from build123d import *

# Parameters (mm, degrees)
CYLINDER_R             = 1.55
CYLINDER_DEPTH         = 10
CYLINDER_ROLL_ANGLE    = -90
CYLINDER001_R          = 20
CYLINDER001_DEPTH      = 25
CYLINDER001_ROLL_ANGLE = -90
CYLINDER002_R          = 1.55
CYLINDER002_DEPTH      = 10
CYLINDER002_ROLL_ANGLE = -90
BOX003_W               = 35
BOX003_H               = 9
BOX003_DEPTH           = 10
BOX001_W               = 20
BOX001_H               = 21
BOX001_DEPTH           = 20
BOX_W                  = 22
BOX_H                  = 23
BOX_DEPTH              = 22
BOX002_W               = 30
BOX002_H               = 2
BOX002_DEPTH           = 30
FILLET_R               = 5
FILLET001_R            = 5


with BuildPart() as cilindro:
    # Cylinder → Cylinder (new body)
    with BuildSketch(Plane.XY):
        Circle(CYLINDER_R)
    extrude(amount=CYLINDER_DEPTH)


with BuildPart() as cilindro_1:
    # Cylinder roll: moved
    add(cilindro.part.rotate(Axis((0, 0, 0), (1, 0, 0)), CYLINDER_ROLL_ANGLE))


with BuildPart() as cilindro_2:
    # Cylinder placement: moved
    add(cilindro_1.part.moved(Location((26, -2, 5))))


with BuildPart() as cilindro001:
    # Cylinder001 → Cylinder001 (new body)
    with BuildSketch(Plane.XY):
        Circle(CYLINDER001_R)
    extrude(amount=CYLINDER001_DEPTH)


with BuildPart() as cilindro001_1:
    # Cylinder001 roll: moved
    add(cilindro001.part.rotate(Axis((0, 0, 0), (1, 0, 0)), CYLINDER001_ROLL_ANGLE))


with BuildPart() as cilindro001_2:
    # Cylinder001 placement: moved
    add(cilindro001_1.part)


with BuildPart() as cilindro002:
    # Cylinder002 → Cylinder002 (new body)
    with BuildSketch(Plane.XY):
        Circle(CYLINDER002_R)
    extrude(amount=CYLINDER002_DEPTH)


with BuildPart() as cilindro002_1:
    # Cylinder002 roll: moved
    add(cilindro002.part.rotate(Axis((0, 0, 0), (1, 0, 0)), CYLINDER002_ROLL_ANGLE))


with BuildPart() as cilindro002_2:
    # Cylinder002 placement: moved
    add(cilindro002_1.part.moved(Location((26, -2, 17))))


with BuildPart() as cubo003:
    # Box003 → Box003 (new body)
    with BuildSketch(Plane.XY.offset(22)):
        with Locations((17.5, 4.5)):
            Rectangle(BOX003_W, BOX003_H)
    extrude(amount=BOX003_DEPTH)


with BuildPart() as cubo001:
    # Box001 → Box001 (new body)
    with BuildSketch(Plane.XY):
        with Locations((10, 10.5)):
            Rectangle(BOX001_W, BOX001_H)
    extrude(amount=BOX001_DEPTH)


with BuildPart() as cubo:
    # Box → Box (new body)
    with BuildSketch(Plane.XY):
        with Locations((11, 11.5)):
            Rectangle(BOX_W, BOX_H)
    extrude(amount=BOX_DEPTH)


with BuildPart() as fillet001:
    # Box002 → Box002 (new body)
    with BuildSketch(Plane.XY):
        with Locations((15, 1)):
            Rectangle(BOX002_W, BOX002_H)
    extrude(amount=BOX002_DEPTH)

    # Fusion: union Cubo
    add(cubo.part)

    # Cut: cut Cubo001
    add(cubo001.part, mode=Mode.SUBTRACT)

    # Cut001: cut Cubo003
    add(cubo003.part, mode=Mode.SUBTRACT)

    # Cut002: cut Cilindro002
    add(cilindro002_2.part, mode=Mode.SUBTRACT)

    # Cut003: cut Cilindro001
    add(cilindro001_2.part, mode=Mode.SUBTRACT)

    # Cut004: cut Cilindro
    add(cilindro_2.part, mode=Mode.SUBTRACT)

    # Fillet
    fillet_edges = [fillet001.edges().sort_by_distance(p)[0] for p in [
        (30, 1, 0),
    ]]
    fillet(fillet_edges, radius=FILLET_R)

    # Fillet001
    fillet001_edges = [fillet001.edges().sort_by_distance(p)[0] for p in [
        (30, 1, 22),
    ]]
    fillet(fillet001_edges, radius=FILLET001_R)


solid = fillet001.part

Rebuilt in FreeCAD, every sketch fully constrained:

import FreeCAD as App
import Part
import Sketcher


def edges_at(feature, points):
    """Names of the edges that pass closest to the given points."""
    edges = feature.Shape.Edges
    near = lambda p: min(range(len(edges)), key=lambda i: edges[i].distToShape(Part.Vertex(*p))[0])
    return sorted({f"Edge{near(p) + 1}" for p in points})


def add_polygon(sketch, points):
    """Adds a closed chain of lines whose ends are joined by coincident constraints."""
    first, n = sketch.GeometryCount, len(points)
    for a, b in zip(points, points[1:] + points[:1]):
        sketch.addGeometry(Part.LineSegment(App.Vector(*a, 0), App.Vector(*b, 0)), False)
    for i in range(n):
        sketch.addConstraint(Sketcher.Constraint("Coincident", first + i, 2, first + (i + 1) % n, 1))

doc = App.newDocument("Part")
body = doc.addObject("PartDesign::Body", "Body")

# Sketch on XY plane
sketch1 = body.newObject("Sketcher::SketchObject", "Sketch")
sketch1.AttachmentSupport = (doc.getObject("XY_Plane"), [""])
sketch1.MapMode = "FlatFace"
sketch1.addGeometry(Part.Circle(App.Vector(0, 0, 0), App.Vector(0, 0, 1), 1.55), False)
sketch1.addConstraint(Sketcher.Constraint("Coincident", 0, 3, -1, 1))
sketch1.addConstraint(Sketcher.Constraint("Diameter", 0, 3.1))
pad1 = body.newObject("PartDesign::Pad", "Pad")
pad1.Profile = sketch1
pad1.Length = 10
body2 = doc.addObject("PartDesign::Body", "Body001")
doc.recompute()

body.Placement = App.Placement(App.Vector(0, 0, 0), App.Rotation(App.Vector(1, 0, 0), 270))
boolean = body2.newObject("PartDesign::Boolean", "Boolean")
boolean.Type = "Fuse"
boolean.addObjects([body])
body3 = doc.addObject("PartDesign::Body", "Body002")
doc.recompute()

body2.Placement = App.Placement(App.Vector(26, -2, 5), App.Rotation(App.Vector(0, 0, 1), 0))
boolean2 = body3.newObject("PartDesign::Boolean", "Boolean001")
boolean2.Type = "Fuse"
boolean2.addObjects([body2])
body4 = doc.addObject("PartDesign::Body", "Body003")

# Sketch on XY plane
sketch2 = body4.newObject("Sketcher::SketchObject", "Sketch001")
sketch2.AttachmentSupport = (doc.getObject("XY_Plane003"), [""])
sketch2.MapMode = "FlatFace"
sketch2.addGeometry(Part.Circle(App.Vector(0, 0, 0), App.Vector(0, 0, 1), 20), False)
sketch2.addConstraint(Sketcher.Constraint("Coincident", 0, 3, -1, 1))
sketch2.addConstraint(Sketcher.Constraint("Diameter", 0, 40.0))
pad2 = body4.newObject("PartDesign::Pad", "Pad001")
pad2.Profile = sketch2
pad2.Length = 25
body5 = doc.addObject("PartDesign::Body", "Body004")
doc.recompute()

body4.Placement = App.Placement(App.Vector(0, 0, 0), App.Rotation(App.Vector(1, 0, 0), 270))
boolean3 = body5.newObject("PartDesign::Boolean", "Boolean002")
boolean3.Type = "Fuse"
boolean3.addObjects([body4])
body6 = doc.addObject("PartDesign::Body", "Body005")

# Sketch on XY plane
sketch3 = body6.newObject("Sketcher::SketchObject", "Sketch002")
sketch3.AttachmentSupport = (doc.getObject("XY_Plane005"), [""])
sketch3.MapMode = "FlatFace"
sketch3.addGeometry(Part.Circle(App.Vector(0, 0, 0), App.Vector(0, 0, 1), 1.55), False)
sketch3.addConstraint(Sketcher.Constraint("Coincident", 0, 3, -1, 1))
sketch3.addConstraint(Sketcher.Constraint("Diameter", 0, 3.1))
pad3 = body6.newObject("PartDesign::Pad", "Pad002")
pad3.Profile = sketch3
pad3.Length = 10
body7 = doc.addObject("PartDesign::Body", "Body006")
doc.recompute()

body6.Placement = App.Placement(App.Vector(0, 0, 0), App.Rotation(App.Vector(1, 0, 0), 270))
boolean4 = body7.newObject("PartDesign::Boolean", "Boolean003")
boolean4.Type = "Fuse"
boolean4.addObjects([body6])
body8 = doc.addObject("PartDesign::Body", "Body007")
doc.recompute()

body7.Placement = App.Placement(App.Vector(26, -2, 17), App.Rotation(App.Vector(0, 0, 1), 0))
boolean5 = body8.newObject("PartDesign::Boolean", "Boolean004")
boolean5.Type = "Fuse"
boolean5.addObjects([body7])
body9 = doc.addObject("PartDesign::Body", "Body008")

# Sketch on XY plane
sketch4 = body9.newObject("Sketcher::SketchObject", "Sketch003")
sketch4.AttachmentSupport = (doc.getObject("XY_Plane008"), [""])
sketch4.MapMode = "FlatFace"
sketch4.AttachmentOffset = App.Placement(App.Vector(0, 0, 22), App.Rotation())
add_polygon(sketch4, [(0, 9), (0, 0), (35, 0), (35, 9)])  # lines 0-3
sketch4.addConstraint(Sketcher.Constraint("Vertical", 0))
sketch4.addConstraint(Sketcher.Constraint("Horizontal", 1))
sketch4.addConstraint(Sketcher.Constraint("Vertical", 2))
sketch4.addConstraint(Sketcher.Constraint("Horizontal", 3))
sketch4.addConstraint(Sketcher.Constraint("Coincident", 0, 2, -1, 1))
sketch4.addConstraint(Sketcher.Constraint("DistanceX", 1, 1, 1, 2, 35.0))
sketch4.addConstraint(Sketcher.Constraint("DistanceY", 0, 2, 0, 1, 9.0))
pad4 = body9.newObject("PartDesign::Pad", "Pad003")
pad4.Profile = sketch4
pad4.Length = 10
body10 = doc.addObject("PartDesign::Body", "Body009")

# Sketch on XY plane
sketch5 = body10.newObject("Sketcher::SketchObject", "Sketch004")
sketch5.AttachmentSupport = (doc.getObject("XY_Plane009"), [""])
sketch5.MapMode = "FlatFace"
add_polygon(sketch5, [(0, 21), (0, 0), (20, 0), (20, 21)])  # lines 0-3
sketch5.addConstraint(Sketcher.Constraint("Vertical", 0))
sketch5.addConstraint(Sketcher.Constraint("Horizontal", 1))
sketch5.addConstraint(Sketcher.Constraint("Vertical", 2))
sketch5.addConstraint(Sketcher.Constraint("Horizontal", 3))
sketch5.addConstraint(Sketcher.Constraint("Coincident", 0, 2, -1, 1))
sketch5.addConstraint(Sketcher.Constraint("DistanceX", 1, 1, 1, 2, 20.0))
sketch5.addConstraint(Sketcher.Constraint("DistanceY", 0, 2, 0, 1, 21.0))
pad5 = body10.newObject("PartDesign::Pad", "Pad004")
pad5.Profile = sketch5
pad5.Length = 20
body11 = doc.addObject("PartDesign::Body", "Body010")

# Sketch on XY plane
sketch6 = body11.newObject("Sketcher::SketchObject", "Sketch005")
sketch6.AttachmentSupport = (doc.getObject("XY_Plane010"), [""])
sketch6.MapMode = "FlatFace"
add_polygon(sketch6, [(0, 23), (0, 0), (22, 0), (22, 23)])  # lines 0-3
sketch6.addConstraint(Sketcher.Constraint("Vertical", 0))
sketch6.addConstraint(Sketcher.Constraint("Horizontal", 1))
sketch6.addConstraint(Sketcher.Constraint("Vertical", 2))
sketch6.addConstraint(Sketcher.Constraint("Horizontal", 3))
sketch6.addConstraint(Sketcher.Constraint("Coincident", 0, 2, -1, 1))
sketch6.addConstraint(Sketcher.Constraint("DistanceX", 1, 1, 1, 2, 22.0))
sketch6.addConstraint(Sketcher.Constraint("DistanceY", 0, 2, 0, 1, 23.0))
pad6 = body11.newObject("PartDesign::Pad", "Pad005")
pad6.Profile = sketch6
pad6.Length = 22
body12 = doc.addObject("PartDesign::Body", "Body011")

# Sketch on XY plane
sketch7 = body12.newObject("Sketcher::SketchObject", "Sketch006")
sketch7.AttachmentSupport = (doc.getObject("XY_Plane011"), [""])
sketch7.MapMode = "FlatFace"
add_polygon(sketch7, [(0, 2), (0, 0), (30, 0), (30, 2)])  # lines 0-3
sketch7.addConstraint(Sketcher.Constraint("Vertical", 0))
sketch7.addConstraint(Sketcher.Constraint("Horizontal", 1))
sketch7.addConstraint(Sketcher.Constraint("Vertical", 2))
sketch7.addConstraint(Sketcher.Constraint("Horizontal", 3))
sketch7.addConstraint(Sketcher.Constraint("Coincident", 0, 2, -1, 1))
sketch7.addConstraint(Sketcher.Constraint("DistanceX", 1, 1, 1, 2, 30.0))
sketch7.addConstraint(Sketcher.Constraint("DistanceY", 0, 2, 0, 1, 2.0))
pad7 = body12.newObject("PartDesign::Pad", "Pad006")
pad7.Profile = sketch7
pad7.Length = 30
doc.recompute()

boolean6 = body12.newObject("PartDesign::Boolean", "Boolean005")
boolean6.Type = "Fuse"
boolean6.addObjects([body11])
doc.recompute()

boolean7 = body12.newObject("PartDesign::Boolean", "Boolean006")
boolean7.Type = "Cut"
boolean7.addObjects([body10])
doc.recompute()

boolean8 = body12.newObject("PartDesign::Boolean", "Boolean007")
boolean8.Type = "Cut"
boolean8.addObjects([body9])
doc.recompute()

boolean9 = body12.newObject("PartDesign::Boolean", "Boolean008")
boolean9.Type = "Cut"
boolean9.addObjects([body8])
doc.recompute()

boolean10 = body12.newObject("PartDesign::Boolean", "Boolean009")
boolean10.Type = "Cut"
boolean10.addObjects([body5])
doc.recompute()

boolean11 = body12.newObject("PartDesign::Boolean", "Boolean010")
boolean11.Type = "Cut"
boolean11.addObjects([body3])
doc.recompute()

fillet = body12.newObject("PartDesign::Fillet", "Fillet")
fillet.Base = (boolean11, edges_at(boolean11, [(30, 1, 0)]))
fillet.Radius = 5
doc.recompute()

fillet2 = body12.newObject("PartDesign::Fillet", "Fillet001")
fillet2.Base = (fillet, edges_at(fillet, [(30, 1, 22)]))
fillet2.Radius = 5

doc.recompute()
